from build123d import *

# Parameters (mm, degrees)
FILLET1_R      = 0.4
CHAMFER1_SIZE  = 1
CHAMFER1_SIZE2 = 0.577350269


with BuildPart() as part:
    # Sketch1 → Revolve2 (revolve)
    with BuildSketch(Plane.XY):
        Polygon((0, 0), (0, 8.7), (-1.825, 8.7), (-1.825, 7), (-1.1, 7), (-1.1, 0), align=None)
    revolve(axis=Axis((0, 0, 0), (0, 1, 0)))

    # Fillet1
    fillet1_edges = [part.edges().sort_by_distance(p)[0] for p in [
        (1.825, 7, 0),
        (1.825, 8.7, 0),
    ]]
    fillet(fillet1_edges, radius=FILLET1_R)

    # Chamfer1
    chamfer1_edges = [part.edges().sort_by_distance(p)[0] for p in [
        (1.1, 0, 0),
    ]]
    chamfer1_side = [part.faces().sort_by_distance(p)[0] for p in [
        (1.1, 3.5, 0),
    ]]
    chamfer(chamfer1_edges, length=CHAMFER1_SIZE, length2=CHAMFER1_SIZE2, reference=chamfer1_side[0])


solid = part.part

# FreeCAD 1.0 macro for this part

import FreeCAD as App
import Part
import Sketcher

V = App.Vector


def edges_at(feature, points):
    """Names of the edges that pass closest to the given points."""
    edges = feature.Shape.Edges
    near = lambda p: min(range(len(edges)), key=lambda i: edges[i].distToShape(Part.Vertex(*p))[0])
    return sorted({f"Edge{near(p) + 1}" for p in points})

doc = App.newDocument("Part")
body = doc.addObject("PartDesign::Body", "Body")

# Sketch on XY plane
sketch1 = body.newObject("Sketcher::SketchObject", "Sketch")
sketch1.AttachmentSupport = (doc.getObject("XY_Plane"), [""])
sketch1.MapMode = "FlatFace"
sketch1.addGeometry([
    Part.LineSegment(V(0, 0, 0), V(0, 8.7, 0)),  # 0
    Part.LineSegment(V(0, 8.7, 0), V(-1.825, 8.7, 0)),  # 1
    Part.LineSegment(V(-1.825, 8.7, 0), V(-1.825, 7, 0)),  # 2
    Part.LineSegment(V(-1.825, 7, 0), V(-1.1, 7, 0)),  # 3
    Part.LineSegment(V(-1.1, 7, 0), V(-1.1, 0, 0)),  # 4
    Part.LineSegment(V(-1.1, 0, 0), V(0, 0, 0)),  # 5
], False)
sketch1.addConstraint([
    Sketcher.Constraint("Coincident", 0, 2, 1, 1),
    Sketcher.Constraint("Coincident", 1, 2, 2, 1),
    Sketcher.Constraint("Coincident", 2, 2, 3, 1),
    Sketcher.Constraint("Coincident", 3, 2, 4, 1),
    Sketcher.Constraint("Coincident", 4, 2, 5, 1),
    Sketcher.Constraint("Coincident", 5, 2, 0, 1),
    Sketcher.Constraint("Vertical", 0),
    Sketcher.Constraint("Horizontal", 1),
    Sketcher.Constraint("Vertical", 2),
    Sketcher.Constraint("Horizontal", 3),
    Sketcher.Constraint("Vertical", 4),
    Sketcher.Constraint("Horizontal", 5),
    Sketcher.Constraint("Coincident", 5, 2, -1, 1),
    Sketcher.Constraint("DistanceY", 4, 2, 4, 1, 7.0),
    Sketcher.Constraint("DistanceX", 5, 1, 5, 2, 1.1),
    Sketcher.Constraint("DistanceY", 0, 1, 0, 2, 8.7),
    Sketcher.Constraint("DistanceX", 1, 2, 1, 1, 1.825),
])
revolution = body.newObject("PartDesign::Revolution", "Revolution")
revolution.Profile = sketch1
revolution.ReferenceAxis = (sketch1, ["V_Axis"])
revolution.Angle = 360
doc.recompute()

fillet = body.newObject("PartDesign::Fillet", "Fillet")
fillet.Base = (revolution, edges_at(revolution, [(1.825, 7, 0), (1.825, 8.7, 0)]))
fillet.Radius = 0.4
doc.recompute()

chamfer = body.newObject("PartDesign::Chamfer", "Chamfer")
chamfer.Base = (fillet, edges_at(fillet, [(1.1, 0, 0)]))
chamfer.ChamferType = "Two distances"
chamfer.Size = 1
chamfer.Size2 = 0.57735

doc.recompute()
